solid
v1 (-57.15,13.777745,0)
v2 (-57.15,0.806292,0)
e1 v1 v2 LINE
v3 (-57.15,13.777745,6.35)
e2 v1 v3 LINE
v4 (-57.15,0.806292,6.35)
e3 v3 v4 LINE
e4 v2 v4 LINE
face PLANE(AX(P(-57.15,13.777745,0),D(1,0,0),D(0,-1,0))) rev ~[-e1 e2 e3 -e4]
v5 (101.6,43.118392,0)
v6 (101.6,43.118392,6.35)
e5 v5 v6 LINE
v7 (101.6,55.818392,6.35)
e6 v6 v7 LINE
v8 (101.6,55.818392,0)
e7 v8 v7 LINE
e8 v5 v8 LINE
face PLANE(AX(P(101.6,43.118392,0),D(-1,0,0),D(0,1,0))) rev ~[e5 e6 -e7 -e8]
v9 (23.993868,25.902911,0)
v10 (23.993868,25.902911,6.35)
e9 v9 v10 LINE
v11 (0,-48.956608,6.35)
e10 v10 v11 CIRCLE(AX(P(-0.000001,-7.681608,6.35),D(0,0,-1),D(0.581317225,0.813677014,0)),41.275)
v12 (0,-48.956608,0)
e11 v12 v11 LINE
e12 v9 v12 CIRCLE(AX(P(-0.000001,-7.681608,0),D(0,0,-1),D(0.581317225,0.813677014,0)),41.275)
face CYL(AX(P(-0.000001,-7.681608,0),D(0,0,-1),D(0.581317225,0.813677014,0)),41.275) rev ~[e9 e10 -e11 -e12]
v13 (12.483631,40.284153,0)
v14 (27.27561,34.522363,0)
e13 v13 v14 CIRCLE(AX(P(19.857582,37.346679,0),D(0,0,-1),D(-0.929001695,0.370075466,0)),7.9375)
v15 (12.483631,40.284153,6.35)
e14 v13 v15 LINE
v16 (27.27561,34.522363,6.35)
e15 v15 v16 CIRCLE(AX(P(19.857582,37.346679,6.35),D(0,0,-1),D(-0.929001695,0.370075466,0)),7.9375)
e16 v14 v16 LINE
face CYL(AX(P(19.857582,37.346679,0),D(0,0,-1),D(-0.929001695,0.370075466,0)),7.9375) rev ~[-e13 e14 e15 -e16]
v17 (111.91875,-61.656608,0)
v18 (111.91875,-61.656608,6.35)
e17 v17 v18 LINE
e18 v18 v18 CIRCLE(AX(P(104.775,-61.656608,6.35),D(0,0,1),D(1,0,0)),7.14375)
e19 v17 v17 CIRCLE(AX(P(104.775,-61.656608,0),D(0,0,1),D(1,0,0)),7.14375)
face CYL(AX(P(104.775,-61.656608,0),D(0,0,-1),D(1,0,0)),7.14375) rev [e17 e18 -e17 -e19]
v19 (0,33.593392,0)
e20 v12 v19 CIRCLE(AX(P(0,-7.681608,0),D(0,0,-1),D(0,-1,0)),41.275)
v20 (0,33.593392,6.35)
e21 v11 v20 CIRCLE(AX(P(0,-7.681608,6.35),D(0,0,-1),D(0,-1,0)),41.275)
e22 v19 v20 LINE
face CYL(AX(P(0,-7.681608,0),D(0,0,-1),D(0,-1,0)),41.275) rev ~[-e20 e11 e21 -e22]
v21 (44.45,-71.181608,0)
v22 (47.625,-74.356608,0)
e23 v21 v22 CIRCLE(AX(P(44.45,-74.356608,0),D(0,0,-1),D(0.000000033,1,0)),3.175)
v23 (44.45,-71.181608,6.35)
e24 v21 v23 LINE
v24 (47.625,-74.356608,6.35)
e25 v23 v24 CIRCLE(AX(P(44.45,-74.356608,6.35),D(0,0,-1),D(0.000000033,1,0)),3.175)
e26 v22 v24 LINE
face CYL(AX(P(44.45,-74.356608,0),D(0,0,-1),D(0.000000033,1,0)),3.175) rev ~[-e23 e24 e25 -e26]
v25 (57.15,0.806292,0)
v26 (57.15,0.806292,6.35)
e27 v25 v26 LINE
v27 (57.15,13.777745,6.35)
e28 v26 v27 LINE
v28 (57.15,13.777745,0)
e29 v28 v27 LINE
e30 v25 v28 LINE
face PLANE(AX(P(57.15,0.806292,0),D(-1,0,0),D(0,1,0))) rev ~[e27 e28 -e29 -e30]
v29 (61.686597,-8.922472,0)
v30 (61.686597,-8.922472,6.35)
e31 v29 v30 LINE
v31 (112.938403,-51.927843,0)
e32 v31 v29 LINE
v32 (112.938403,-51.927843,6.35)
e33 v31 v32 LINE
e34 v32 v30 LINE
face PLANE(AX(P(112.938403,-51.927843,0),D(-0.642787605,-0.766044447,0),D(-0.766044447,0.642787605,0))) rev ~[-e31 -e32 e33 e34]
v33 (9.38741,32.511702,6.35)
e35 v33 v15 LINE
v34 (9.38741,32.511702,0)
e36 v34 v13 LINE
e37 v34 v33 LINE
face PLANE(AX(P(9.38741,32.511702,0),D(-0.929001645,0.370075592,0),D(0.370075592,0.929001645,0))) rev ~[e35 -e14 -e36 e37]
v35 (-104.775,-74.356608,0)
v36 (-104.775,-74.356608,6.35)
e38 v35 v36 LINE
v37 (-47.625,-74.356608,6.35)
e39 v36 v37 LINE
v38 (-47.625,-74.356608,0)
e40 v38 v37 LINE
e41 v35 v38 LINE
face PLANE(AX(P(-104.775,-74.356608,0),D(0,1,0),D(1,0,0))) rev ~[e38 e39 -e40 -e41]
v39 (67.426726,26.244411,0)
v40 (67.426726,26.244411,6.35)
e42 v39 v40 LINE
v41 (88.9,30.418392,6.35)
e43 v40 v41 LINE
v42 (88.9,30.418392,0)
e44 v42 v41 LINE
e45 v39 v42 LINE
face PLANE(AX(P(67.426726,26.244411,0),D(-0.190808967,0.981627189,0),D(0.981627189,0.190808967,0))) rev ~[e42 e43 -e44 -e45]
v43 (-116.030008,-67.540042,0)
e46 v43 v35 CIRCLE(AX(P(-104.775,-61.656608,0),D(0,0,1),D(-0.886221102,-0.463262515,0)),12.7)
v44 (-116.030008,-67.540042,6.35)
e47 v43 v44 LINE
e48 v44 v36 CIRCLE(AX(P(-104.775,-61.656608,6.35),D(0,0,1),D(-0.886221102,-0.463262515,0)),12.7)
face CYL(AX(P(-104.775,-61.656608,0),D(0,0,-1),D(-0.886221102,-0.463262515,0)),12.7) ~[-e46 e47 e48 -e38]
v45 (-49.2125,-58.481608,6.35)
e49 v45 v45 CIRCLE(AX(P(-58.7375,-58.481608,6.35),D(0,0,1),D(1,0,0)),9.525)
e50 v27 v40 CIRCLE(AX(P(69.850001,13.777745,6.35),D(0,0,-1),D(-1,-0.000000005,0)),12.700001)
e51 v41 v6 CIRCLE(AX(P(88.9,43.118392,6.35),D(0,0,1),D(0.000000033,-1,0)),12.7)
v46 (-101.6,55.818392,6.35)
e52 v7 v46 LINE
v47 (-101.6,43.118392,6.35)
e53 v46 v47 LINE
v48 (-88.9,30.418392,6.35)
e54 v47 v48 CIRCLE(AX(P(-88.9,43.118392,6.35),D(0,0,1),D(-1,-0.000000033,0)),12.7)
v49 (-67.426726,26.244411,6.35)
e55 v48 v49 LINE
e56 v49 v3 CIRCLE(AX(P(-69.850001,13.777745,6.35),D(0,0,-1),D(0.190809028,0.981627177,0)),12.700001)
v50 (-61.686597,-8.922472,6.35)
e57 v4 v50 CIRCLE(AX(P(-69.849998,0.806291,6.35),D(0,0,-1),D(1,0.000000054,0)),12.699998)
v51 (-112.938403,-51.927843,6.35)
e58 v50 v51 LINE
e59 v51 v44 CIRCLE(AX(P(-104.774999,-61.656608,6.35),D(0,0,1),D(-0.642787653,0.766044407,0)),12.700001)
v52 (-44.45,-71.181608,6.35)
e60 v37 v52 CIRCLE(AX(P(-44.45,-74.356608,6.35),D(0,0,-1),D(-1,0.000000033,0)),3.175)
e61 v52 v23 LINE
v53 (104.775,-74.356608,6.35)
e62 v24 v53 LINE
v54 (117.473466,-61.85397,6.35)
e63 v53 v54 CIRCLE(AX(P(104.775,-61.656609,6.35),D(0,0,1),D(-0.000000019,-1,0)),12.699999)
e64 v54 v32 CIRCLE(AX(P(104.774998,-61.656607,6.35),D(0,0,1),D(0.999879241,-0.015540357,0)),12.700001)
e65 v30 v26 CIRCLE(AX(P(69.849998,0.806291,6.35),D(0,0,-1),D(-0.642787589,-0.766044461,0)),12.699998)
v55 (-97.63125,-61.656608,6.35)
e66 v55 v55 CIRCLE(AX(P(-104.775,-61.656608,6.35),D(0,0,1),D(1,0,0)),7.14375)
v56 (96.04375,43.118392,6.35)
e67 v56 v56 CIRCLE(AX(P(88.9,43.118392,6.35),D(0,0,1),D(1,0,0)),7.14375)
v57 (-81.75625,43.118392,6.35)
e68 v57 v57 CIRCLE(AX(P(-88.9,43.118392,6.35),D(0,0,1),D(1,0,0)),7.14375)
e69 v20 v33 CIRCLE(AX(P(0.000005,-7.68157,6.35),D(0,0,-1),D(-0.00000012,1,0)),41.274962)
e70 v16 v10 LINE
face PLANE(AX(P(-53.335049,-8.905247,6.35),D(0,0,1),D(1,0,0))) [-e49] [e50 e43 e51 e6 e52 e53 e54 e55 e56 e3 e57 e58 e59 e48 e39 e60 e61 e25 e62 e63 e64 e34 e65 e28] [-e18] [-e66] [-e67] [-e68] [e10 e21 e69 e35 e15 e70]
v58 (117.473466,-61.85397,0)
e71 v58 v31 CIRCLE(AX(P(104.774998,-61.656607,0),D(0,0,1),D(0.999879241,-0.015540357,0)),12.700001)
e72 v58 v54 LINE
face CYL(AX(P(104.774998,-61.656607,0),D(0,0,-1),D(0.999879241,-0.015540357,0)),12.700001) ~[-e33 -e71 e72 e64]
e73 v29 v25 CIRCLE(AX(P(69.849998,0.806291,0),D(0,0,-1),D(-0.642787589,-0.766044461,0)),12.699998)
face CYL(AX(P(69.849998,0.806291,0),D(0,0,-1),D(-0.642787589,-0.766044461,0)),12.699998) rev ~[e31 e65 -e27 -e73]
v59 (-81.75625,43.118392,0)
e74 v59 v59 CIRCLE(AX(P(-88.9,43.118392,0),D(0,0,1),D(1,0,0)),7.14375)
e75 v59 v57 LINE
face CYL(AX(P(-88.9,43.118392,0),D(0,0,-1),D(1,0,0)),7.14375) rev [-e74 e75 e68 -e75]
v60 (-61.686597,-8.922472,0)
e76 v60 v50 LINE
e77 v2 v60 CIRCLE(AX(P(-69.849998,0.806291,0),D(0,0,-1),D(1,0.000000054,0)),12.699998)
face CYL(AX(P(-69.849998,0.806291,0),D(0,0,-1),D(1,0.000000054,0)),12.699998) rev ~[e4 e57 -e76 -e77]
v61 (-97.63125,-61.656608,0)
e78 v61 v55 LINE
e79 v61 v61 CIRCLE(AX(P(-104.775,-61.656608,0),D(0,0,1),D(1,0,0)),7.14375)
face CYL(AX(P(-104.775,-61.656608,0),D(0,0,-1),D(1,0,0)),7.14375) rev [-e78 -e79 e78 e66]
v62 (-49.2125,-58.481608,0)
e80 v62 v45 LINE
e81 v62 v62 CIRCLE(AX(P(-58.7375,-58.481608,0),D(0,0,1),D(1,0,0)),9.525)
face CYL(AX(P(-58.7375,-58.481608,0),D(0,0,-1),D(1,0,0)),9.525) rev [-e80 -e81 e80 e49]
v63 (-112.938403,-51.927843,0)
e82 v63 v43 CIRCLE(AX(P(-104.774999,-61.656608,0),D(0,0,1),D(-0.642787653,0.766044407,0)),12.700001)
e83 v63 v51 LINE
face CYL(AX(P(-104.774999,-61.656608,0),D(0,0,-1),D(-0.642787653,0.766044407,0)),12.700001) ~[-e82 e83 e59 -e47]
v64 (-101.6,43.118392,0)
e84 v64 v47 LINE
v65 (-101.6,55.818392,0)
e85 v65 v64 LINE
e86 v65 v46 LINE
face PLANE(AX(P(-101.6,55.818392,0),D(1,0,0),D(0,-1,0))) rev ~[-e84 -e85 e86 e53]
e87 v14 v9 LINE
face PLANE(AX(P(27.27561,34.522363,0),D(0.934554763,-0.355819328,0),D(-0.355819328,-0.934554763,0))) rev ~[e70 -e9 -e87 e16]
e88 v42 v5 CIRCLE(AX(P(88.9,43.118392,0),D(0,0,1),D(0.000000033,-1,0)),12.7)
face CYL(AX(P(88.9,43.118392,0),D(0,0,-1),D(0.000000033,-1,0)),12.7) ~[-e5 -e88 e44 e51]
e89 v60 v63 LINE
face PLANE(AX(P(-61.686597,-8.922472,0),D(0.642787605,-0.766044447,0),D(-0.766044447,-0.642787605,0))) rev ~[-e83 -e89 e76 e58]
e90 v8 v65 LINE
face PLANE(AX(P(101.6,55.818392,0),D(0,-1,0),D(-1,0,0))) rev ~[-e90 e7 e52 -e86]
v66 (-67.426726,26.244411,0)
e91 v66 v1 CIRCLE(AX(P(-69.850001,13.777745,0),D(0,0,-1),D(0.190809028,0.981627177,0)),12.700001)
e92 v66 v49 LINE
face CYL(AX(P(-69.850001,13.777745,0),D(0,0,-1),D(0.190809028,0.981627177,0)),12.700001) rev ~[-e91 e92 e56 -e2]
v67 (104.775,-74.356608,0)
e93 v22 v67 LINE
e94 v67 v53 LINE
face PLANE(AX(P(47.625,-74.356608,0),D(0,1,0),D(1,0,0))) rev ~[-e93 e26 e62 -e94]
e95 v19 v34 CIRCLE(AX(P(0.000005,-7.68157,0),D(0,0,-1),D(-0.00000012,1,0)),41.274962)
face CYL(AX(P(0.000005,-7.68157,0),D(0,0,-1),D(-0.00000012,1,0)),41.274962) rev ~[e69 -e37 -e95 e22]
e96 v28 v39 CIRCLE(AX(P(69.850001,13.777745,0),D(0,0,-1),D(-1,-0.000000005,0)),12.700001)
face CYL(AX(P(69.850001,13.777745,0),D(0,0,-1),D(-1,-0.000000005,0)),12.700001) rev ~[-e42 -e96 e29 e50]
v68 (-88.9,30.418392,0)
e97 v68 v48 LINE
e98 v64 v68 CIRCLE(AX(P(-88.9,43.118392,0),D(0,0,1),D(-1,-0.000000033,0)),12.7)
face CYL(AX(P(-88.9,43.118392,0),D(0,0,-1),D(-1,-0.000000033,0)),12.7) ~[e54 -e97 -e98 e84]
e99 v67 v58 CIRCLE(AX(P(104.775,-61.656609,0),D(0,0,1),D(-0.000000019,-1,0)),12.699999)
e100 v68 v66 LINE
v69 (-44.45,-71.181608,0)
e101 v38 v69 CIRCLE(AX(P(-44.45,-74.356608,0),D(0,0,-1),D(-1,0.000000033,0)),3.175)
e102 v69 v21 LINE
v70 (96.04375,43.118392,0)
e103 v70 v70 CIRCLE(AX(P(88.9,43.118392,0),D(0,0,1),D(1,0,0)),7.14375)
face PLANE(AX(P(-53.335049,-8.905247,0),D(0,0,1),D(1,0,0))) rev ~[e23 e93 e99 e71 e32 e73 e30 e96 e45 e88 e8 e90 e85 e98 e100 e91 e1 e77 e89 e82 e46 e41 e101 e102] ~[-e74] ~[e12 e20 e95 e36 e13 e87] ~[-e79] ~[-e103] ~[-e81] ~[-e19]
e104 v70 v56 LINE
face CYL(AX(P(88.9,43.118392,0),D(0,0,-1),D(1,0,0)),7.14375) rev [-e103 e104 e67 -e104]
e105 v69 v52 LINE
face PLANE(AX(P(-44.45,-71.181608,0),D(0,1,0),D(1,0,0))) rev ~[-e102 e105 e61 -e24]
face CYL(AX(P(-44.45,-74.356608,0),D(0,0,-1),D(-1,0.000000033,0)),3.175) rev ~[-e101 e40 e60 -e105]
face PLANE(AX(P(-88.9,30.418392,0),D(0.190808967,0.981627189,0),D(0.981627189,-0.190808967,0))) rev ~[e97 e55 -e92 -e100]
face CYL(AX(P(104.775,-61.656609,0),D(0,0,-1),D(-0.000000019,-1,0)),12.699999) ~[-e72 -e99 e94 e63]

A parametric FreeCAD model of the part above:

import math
import FreeCAD as App
import Part
import Sketcher

V = App.Vector
Q = App.Units.Quantity

doc = App.newDocument("Part")
params = doc.addObject("Spreadsheet::Sheet", "Params")
for row, (alias, value) in enumerate([
    ("sketch1_radius", "0.5 in"),
    ("sketch1_radius2", "0.5 in"),
    ("sketch1_radius3", "0.4999999 in"),
    ("sketch1_radius4", "0.5 in"),
    ("sketch1_radius5", "0.5 in"),
    ("pad1_length", "0.25 in"),
], start=1):
    params.set(f"A{row}", alias)
    params.set(f"B{row}", "=" + value)
    params.setAlias(f"B{row}", alias)

body = doc.addObject("PartDesign::Body", "Body")

# Sketch on XY plane
sketch1 = doc.addObject("Sketcher::SketchObject", "Sketch")
body.addObject(sketch1)
sketch1.AttachmentSupport = (doc.XY_Plane, [""])
sketch1.MapMode = "FlatFace"
sketch1.addGeometry([
    Part.LineSegment(V(-101.6, 55.818392, 0), V(-101.6, 43.118392, 0)),  # 0
    Part.ArcOfCircle(Part.Circle(V(-88.9, 43.118392, 0), V(0, 0, 1), 12.7), math.radians(-179.999998), math.radians(-90.000002)),  # 1
    Part.LineSegment(V(-88.9, 30.418392, 0), V(-67.426726, 26.244411, 0)),  # 2
    Part.ArcOfCircle(Part.Circle(V(-69.850001, 13.777745, 0), V(0, 0, 1), 12.700001), math.radians(0), math.radians(78.999998)),  # 3
    Part.LineSegment(V(-57.15, 13.777745, 0), V(-57.15, 0.806292, 0)),  # 4
    Part.ArcOfCircle(Part.Circle(V(-69.849998, 0.806291, 0), V(0, 0, 1), 12.699998), math.radians(-50.000002), math.radians(0.000003)),  # 5
    Part.LineSegment(V(-61.686597, -8.922472, 0), V(-112.938403, -51.927843, 0)),  # 6
    Part.ArcOfCircle(Part.Circle(V(-104.774999, -61.656608, 0), V(0, 0, 1), 12.700001), math.radians(130.000003), math.radians(207.597833)),  # 7
    Part.ArcOfCircle(Part.Circle(V(-104.775, -61.656608, 0), V(0, 0, 1), 12.7), math.radians(-152.402167), math.radians(-90)),  # 8
    Part.LineSegment(V(-104.775, -74.356608, 0), V(-47.625, -74.356608, 0)),  # 9
    Part.ArcOfCircle(Part.Circle(V(-44.45, -74.356608, 0), V(0, 0, 1), 3.175), math.radians(90.000002), math.radians(179.999998)),  # 10
    Part.LineSegment(V(-44.45, -71.181608, 0), V(44.45, -71.181608, 0)),  # 11
    Part.ArcOfCircle(Part.Circle(V(44.45, -74.356608, 0), V(0, 0, 1), 3.175), math.radians(0.000002), math.radians(89.999998)),  # 12
    Part.LineSegment(V(47.625, -74.356608, 0), V(104.775, -74.356608, 0)),  # 13
    Part.ArcOfCircle(Part.Circle(V(104.775, -61.656609, 0), V(0, 0, 1), 12.699999), math.radians(-90.000001), math.radians(-0.890428)),  # 14
    Part.ArcOfCircle(Part.Circle(V(104.774998, -61.656607, 0), V(0, 0, 1), 12.700001), math.radians(-0.890433), math.radians(49.999993)),  # 15
    Part.LineSegment(V(112.938403, -51.927843, 0), V(61.686597, -8.922472, 0)),  # 16
    Part.ArcOfCircle(Part.Circle(V(69.849998, 0.806291, 0), V(0, 0, 1), 12.699998), math.radians(179.999997), math.radians(230.000002)),  # 17
    Part.LineSegment(V(57.15, 0.806292, 0), V(57.15, 13.777745, 0)),  # 18
    Part.ArcOfCircle(Part.Circle(V(69.850001, 13.777745, 0), V(0, 0, 1), 12.700001), math.radians(101.000002), math.radians(180)),  # 19
    Part.LineSegment(V(67.426726, 26.244411, 0), V(88.9, 30.418392, 0)),  # 20
    Part.ArcOfCircle(Part.Circle(V(88.9, 43.118392, 0), V(0, 0, 1), 12.7), math.radians(-89.999998), math.radians(-0.000002)),  # 21
    Part.LineSegment(V(101.6, 43.118392, 0), V(101.6, 55.818392, 0)),  # 22
    Part.LineSegment(V(101.6, 55.818392, 0), V(-101.6, 55.818392, 0)),  # 23
    Part.Circle(V(-104.775, -61.656608, 0), V(0, 0, 1), 7.14375),  # 24
    Part.Circle(V(-58.7375, -58.481608, 0), V(0, 0, 1), 9.525),  # 25
    Part.Circle(V(104.775, -61.656608, 0), V(0, 0, 1), 7.14375),  # 26
    Part.ArcOfCircle(Part.Circle(V(0, -7.681608, 0), V(0, 0, 1), 41.275), math.radians(90), math.radians(270)),  # 27
    Part.ArcOfCircle(Part.Circle(V(0.000005, -7.68157, 0), V(0, 0, 1), 41.274962), math.radians(76.853845), math.radians(90.000007)),  # 28
    Part.LineSegment(V(9.38741, 32.511702, 0), V(12.483631, 40.284153, 0)),  # 29
    Part.ArcOfCircle(Part.Circle(V(19.857582, 37.346679, 0), V(0, 0, 1), 7.9375), math.radians(-20.843669), math.radians(158.279728)),  # 30
    Part.LineSegment(V(27.27561, 34.522363, 0), V(23.993868, 25.902911, 0)),  # 31
    Part.ArcOfCircle(Part.Circle(V(-0.000001, -7.681608, 0), V(0, 0, 1), 41.275), math.radians(-89.999999), math.radians(54.456757)),  # 32
    Part.Circle(V(-88.9, 43.118392, 0), V(0, 0, 1), 7.14375),  # 33
    Part.Circle(V(88.9, 43.118392, 0), V(0, 0, 1), 7.14375),  # 34
], False)
sketch1.addConstraint([
    Sketcher.Constraint("Coincident", 0, 2, 1, 1),
    Sketcher.Constraint("Coincident", 1, 2, 2, 1),
    Sketcher.Constraint("Coincident", 2, 2, 3, 2),
    Sketcher.Constraint("Coincident", 3, 1, 4, 1),
    Sketcher.Constraint("Coincident", 4, 2, 5, 2),
    Sketcher.Constraint("Coincident", 5, 1, 6, 1),
    Sketcher.Constraint("Coincident", 6, 2, 7, 1),
    Sketcher.Constraint("Coincident", 7, 2, 8, 1),
    Sketcher.Constraint("Coincident", 8, 2, 9, 1),
    Sketcher.Constraint("Coincident", 9, 2, 10, 2),
    Sketcher.Constraint("Coincident", 10, 1, 11, 1),
    Sketcher.Constraint("Coincident", 11, 2, 12, 2),
    Sketcher.Constraint("Coincident", 12, 1, 13, 1),
    Sketcher.Constraint("Coincident", 13, 2, 14, 1),
    Sketcher.Constraint("Coincident", 14, 2, 15, 1),
    Sketcher.Constraint("Coincident", 15, 2, 16, 1),
    Sketcher.Constraint("Coincident", 16, 2, 17, 2),
    Sketcher.Constraint("Coincident", 17, 1, 18, 1),
    Sketcher.Constraint("Coincident", 18, 2, 19, 2),
    Sketcher.Constraint("Coincident", 19, 1, 20, 1),
    Sketcher.Constraint("Coincident", 20, 2, 21, 1),
    Sketcher.Constraint("Coincident", 21, 2, 22, 1),
    Sketcher.Constraint("Coincident", 22, 2, 23, 1),
    Sketcher.Constraint("Coincident", 23, 2, 0, 1),
    Sketcher.Constraint("Coincident", 27, 1, 28, 2),
    Sketcher.Constraint("Coincident", 28, 1, 29, 1),
    Sketcher.Constraint("Coincident", 29, 2, 30, 2),
    Sketcher.Constraint("Coincident", 30, 1, 31, 1),
    Sketcher.Constraint("Coincident", 31, 2, 32, 2),
    Sketcher.Constraint("Coincident", 32, 1, 27, 2),
    Sketcher.Constraint("Vertical", 0),
    Sketcher.Constraint("Vertical", 4),
    Sketcher.Constraint("Horizontal", 9),
    Sketcher.Constraint("Horizontal", 11),
    Sketcher.Constraint("Horizontal", 13),
    Sketcher.Constraint("Vertical", 18),
    Sketcher.Constraint("Vertical", 22),
    Sketcher.Constraint("Horizontal", 23),
    Sketcher.Constraint("Coincident", 8, 3, 7, 3),
    Sketcher.Constraint("Coincident", 15, 3, 14, 3),
    Sketcher.Constraint("Coincident", 24, 3, 7, 3),
    Sketcher.Constraint("Coincident", 26, 3, 14, 3),
    Sketcher.Constraint("Coincident", 32, 3, 27, 3),
    Sketcher.Constraint("Coincident", 33, 3, 1, 3),
    Sketcher.Constraint("Coincident", 34, 3, 21, 3),
    Sketcher.Constraint("PointOnObject", 27, 3, -2),
    Sketcher.Constraint("PointOnObject", 27, 1, -2),
    Sketcher.Constraint("PointOnObject", 32, 1, -2),
    Sketcher.Constraint("Radius", 1, Q("0.5 in")),
    Sketcher.Constraint("Radius", 3, Q("0.5 in")),
    Sketcher.Constraint("Radius", 5, Q("0.4999999 in")),
    Sketcher.Constraint("Radius", 7, Q("0.5 in")),
    Sketcher.Constraint("Radius", 14, Q("0.5 in")),
    Sketcher.Constraint("Radius", 17, Q("0.4999999 in")),
    Sketcher.Constraint("Radius", 19, Q("0.5 in")),
    Sketcher.Constraint("Radius", 21, Q("0.5 in")),
    Sketcher.Constraint("Diameter", 25, Q("0.75 in")),
    Sketcher.Constraint("DistanceX", 23, 2, 23, 1, Q("8 in")),
    Sketcher.Constraint("Diameter", 24, Q("0.5625 in")),
    Sketcher.Constraint("Diameter", 26, Q("0.5625 in")),
    Sketcher.Constraint("Diameter", 33, Q("0.5625 in")),
    Sketcher.Constraint("Diameter", 34, Q("0.5625 in")),
    Sketcher.Constraint("DistanceX", 11, 1, 11, 2, Q("3.5 in")),
    Sketcher.Constraint("DistanceY", 0, 2, 0, 1, Q("0.5 in")),
    Sketcher.Constraint("DistanceY", 22, 1, 22, 2, Q("0.5 in")),
    Sketcher.Constraint("DistanceX", 0, 2, -1, 1, Q("4 in")),
    Sketcher.Constraint("Radius", 10, Q("0.125 in")),
    Sketcher.Constraint("Radius", 12, Q("0.125 in")),
    Sketcher.Constraint("Radius", 27, Q("1.625 in")),
    Sketcher.Constraint("Radius", 30, Q("0.3125 in")),
    Sketcher.Constraint("DistanceX", 5, 3, 10, 3, Q("0.9999999 in")),
    Sketcher.Constraint("DistanceX", 12, 3, 17, 3, Q("0.9999999 in")),
    Sketcher.Constraint("DistanceY", 25, 3, 27, 3, Q("2 in")),
    Sketcher.Constraint("DistanceY", 32, 3, 33, 3, Q("2 in")),
    Sketcher.Constraint("DistanceX", 11, 2, 17, 3, Q("0.9999999 in")),
    Sketcher.Constraint("DistanceY", 20, 2, 22, 2, Q("1 in")),
    Sketcher.Constraint("DistanceY", 1, 2, 23, 2, Q("1 in")),
    Sketcher.Constraint("DistanceX", 9, 1, 9, 2, Q("2.25 in")),
    Sketcher.Constraint("DistanceX", 13, 1, 13, 2, Q("2.25 in")),
    Sketcher.Constraint("DistanceX", 1, 2, -1, 1, Q("3.5 in")),
    Sketcher.Constraint("DistanceX", -1, 1, 20, 2, Q("3.5 in")),
    Sketcher.Constraint("DistanceY", 10, 3, 7, 3, Q("0.5 in")),
    Sketcher.Constraint("DistanceX", 10, 3, 12, 3, Q("3.5 in")),
    Sketcher.Constraint("DistanceY", 12, 3, 14, 3, Q("0.5 in")),
    Sketcher.Constraint("DistanceX", 33, 3, 28, 3, Q("3.5000002 in")),
    Sketcher.Constraint("DistanceY", 10, 1, 25, 3, Q("0.5 in")),
    Sketcher.Constraint("DistanceX", 3, 3, -1, 1, Q("2.75 in")),
    Sketcher.Constraint("DistanceX", 7, 3, 14, 3, Q("8.25 in")),
    Sketcher.Constraint("DistanceX", 7, 3, 9, 2, Q("2.25 in")),
    Sketcher.Constraint("DistanceX", 25, 3, -1, 1, Q("2.3125 in")),
    Sketcher.Constraint("Radius", 28, 41.274962),
    Sketcher.Constraint("DistanceY", -1, 1, 28, 1, 32.511702),
    Sketcher.Constraint("DistanceY", 5, 3, 1, 3, 42.312101),
    Sketcher.Constraint("DistanceY", 15, 3, 17, 3, 62.462899),
    Sketcher.Constraint("DistanceY", 4, 2, 1, 2, 29.6121),
    Sketcher.Constraint("DistanceX", 5, 3, 5, 1, 8.163401),
    Sketcher.Constraint("DistanceY", 7, 2, 6, 2, 15.612199),
    Sketcher.Constraint("DistanceX", 16, 2, 17, 3, 8.163401),
    Sketcher.Constraint("DistanceY", 17, 1, 34, 3, 42.3121),
    Sketcher.Constraint("DistanceX", 28, 1, 30, 1, 17.8882),
    Sketcher.Constraint("Distance", 6, 66.904481),
    Sketcher.Constraint("Distance", 16, 66.904481),
    Sketcher.Constraint("DistanceY", 4, 2, 4, 1, 12.971453),
    Sketcher.Constraint("DistanceY", 18, 1, 18, 2, 12.971453),
    Sketcher.Constraint("DistanceY", -1, 1, 5, 3, 0.806291),
    Sketcher.Constraint("DistanceX", -1, 1, 30, 3, 19.857582),
    Sketcher.Constraint("DistanceY", -1, 1, 30, 3, 37.346679),
    Sketcher.Constraint("DistanceY", -1, 1, 2, 2, 26.244411),
    Sketcher.Constraint("DistanceY", 14, 2, -1, 1, 61.85397),
    Sketcher.Constraint("DistanceY", -1, 1, 19, 1, 26.244411),
    Sketcher.Constraint("DistanceX", -1, 1, 29, 2, 12.483631),
    Sketcher.Constraint("DistanceY", -1, 1, 31, 2, 25.902911),
    Sketcher.Constraint("DistanceX", 2, 2, 5, 1, 5.740129),
    Sketcher.Constraint("Distance", 20, 21.875183),
])
sketch1.setExpression("Constraints[48]", "Params.sketch1_radius")
sketch1.setExpression("Constraints[49]", "Params.sketch1_radius2")
sketch1.setExpression("Constraints[50]", "Params.sketch1_radius3")
sketch1.setExpression("Constraints[51]", "Params.sketch1_radius4")
sketch1.setExpression("Constraints[52]", "Params.sketch1_radius5")
pad1 = doc.addObject("PartDesign::Pad", "Pad")
body.addObject(pad1)
pad1.Profile = sketch1
pad1.setExpression("Length", "Params.pad1_length")

doc.recompute()
